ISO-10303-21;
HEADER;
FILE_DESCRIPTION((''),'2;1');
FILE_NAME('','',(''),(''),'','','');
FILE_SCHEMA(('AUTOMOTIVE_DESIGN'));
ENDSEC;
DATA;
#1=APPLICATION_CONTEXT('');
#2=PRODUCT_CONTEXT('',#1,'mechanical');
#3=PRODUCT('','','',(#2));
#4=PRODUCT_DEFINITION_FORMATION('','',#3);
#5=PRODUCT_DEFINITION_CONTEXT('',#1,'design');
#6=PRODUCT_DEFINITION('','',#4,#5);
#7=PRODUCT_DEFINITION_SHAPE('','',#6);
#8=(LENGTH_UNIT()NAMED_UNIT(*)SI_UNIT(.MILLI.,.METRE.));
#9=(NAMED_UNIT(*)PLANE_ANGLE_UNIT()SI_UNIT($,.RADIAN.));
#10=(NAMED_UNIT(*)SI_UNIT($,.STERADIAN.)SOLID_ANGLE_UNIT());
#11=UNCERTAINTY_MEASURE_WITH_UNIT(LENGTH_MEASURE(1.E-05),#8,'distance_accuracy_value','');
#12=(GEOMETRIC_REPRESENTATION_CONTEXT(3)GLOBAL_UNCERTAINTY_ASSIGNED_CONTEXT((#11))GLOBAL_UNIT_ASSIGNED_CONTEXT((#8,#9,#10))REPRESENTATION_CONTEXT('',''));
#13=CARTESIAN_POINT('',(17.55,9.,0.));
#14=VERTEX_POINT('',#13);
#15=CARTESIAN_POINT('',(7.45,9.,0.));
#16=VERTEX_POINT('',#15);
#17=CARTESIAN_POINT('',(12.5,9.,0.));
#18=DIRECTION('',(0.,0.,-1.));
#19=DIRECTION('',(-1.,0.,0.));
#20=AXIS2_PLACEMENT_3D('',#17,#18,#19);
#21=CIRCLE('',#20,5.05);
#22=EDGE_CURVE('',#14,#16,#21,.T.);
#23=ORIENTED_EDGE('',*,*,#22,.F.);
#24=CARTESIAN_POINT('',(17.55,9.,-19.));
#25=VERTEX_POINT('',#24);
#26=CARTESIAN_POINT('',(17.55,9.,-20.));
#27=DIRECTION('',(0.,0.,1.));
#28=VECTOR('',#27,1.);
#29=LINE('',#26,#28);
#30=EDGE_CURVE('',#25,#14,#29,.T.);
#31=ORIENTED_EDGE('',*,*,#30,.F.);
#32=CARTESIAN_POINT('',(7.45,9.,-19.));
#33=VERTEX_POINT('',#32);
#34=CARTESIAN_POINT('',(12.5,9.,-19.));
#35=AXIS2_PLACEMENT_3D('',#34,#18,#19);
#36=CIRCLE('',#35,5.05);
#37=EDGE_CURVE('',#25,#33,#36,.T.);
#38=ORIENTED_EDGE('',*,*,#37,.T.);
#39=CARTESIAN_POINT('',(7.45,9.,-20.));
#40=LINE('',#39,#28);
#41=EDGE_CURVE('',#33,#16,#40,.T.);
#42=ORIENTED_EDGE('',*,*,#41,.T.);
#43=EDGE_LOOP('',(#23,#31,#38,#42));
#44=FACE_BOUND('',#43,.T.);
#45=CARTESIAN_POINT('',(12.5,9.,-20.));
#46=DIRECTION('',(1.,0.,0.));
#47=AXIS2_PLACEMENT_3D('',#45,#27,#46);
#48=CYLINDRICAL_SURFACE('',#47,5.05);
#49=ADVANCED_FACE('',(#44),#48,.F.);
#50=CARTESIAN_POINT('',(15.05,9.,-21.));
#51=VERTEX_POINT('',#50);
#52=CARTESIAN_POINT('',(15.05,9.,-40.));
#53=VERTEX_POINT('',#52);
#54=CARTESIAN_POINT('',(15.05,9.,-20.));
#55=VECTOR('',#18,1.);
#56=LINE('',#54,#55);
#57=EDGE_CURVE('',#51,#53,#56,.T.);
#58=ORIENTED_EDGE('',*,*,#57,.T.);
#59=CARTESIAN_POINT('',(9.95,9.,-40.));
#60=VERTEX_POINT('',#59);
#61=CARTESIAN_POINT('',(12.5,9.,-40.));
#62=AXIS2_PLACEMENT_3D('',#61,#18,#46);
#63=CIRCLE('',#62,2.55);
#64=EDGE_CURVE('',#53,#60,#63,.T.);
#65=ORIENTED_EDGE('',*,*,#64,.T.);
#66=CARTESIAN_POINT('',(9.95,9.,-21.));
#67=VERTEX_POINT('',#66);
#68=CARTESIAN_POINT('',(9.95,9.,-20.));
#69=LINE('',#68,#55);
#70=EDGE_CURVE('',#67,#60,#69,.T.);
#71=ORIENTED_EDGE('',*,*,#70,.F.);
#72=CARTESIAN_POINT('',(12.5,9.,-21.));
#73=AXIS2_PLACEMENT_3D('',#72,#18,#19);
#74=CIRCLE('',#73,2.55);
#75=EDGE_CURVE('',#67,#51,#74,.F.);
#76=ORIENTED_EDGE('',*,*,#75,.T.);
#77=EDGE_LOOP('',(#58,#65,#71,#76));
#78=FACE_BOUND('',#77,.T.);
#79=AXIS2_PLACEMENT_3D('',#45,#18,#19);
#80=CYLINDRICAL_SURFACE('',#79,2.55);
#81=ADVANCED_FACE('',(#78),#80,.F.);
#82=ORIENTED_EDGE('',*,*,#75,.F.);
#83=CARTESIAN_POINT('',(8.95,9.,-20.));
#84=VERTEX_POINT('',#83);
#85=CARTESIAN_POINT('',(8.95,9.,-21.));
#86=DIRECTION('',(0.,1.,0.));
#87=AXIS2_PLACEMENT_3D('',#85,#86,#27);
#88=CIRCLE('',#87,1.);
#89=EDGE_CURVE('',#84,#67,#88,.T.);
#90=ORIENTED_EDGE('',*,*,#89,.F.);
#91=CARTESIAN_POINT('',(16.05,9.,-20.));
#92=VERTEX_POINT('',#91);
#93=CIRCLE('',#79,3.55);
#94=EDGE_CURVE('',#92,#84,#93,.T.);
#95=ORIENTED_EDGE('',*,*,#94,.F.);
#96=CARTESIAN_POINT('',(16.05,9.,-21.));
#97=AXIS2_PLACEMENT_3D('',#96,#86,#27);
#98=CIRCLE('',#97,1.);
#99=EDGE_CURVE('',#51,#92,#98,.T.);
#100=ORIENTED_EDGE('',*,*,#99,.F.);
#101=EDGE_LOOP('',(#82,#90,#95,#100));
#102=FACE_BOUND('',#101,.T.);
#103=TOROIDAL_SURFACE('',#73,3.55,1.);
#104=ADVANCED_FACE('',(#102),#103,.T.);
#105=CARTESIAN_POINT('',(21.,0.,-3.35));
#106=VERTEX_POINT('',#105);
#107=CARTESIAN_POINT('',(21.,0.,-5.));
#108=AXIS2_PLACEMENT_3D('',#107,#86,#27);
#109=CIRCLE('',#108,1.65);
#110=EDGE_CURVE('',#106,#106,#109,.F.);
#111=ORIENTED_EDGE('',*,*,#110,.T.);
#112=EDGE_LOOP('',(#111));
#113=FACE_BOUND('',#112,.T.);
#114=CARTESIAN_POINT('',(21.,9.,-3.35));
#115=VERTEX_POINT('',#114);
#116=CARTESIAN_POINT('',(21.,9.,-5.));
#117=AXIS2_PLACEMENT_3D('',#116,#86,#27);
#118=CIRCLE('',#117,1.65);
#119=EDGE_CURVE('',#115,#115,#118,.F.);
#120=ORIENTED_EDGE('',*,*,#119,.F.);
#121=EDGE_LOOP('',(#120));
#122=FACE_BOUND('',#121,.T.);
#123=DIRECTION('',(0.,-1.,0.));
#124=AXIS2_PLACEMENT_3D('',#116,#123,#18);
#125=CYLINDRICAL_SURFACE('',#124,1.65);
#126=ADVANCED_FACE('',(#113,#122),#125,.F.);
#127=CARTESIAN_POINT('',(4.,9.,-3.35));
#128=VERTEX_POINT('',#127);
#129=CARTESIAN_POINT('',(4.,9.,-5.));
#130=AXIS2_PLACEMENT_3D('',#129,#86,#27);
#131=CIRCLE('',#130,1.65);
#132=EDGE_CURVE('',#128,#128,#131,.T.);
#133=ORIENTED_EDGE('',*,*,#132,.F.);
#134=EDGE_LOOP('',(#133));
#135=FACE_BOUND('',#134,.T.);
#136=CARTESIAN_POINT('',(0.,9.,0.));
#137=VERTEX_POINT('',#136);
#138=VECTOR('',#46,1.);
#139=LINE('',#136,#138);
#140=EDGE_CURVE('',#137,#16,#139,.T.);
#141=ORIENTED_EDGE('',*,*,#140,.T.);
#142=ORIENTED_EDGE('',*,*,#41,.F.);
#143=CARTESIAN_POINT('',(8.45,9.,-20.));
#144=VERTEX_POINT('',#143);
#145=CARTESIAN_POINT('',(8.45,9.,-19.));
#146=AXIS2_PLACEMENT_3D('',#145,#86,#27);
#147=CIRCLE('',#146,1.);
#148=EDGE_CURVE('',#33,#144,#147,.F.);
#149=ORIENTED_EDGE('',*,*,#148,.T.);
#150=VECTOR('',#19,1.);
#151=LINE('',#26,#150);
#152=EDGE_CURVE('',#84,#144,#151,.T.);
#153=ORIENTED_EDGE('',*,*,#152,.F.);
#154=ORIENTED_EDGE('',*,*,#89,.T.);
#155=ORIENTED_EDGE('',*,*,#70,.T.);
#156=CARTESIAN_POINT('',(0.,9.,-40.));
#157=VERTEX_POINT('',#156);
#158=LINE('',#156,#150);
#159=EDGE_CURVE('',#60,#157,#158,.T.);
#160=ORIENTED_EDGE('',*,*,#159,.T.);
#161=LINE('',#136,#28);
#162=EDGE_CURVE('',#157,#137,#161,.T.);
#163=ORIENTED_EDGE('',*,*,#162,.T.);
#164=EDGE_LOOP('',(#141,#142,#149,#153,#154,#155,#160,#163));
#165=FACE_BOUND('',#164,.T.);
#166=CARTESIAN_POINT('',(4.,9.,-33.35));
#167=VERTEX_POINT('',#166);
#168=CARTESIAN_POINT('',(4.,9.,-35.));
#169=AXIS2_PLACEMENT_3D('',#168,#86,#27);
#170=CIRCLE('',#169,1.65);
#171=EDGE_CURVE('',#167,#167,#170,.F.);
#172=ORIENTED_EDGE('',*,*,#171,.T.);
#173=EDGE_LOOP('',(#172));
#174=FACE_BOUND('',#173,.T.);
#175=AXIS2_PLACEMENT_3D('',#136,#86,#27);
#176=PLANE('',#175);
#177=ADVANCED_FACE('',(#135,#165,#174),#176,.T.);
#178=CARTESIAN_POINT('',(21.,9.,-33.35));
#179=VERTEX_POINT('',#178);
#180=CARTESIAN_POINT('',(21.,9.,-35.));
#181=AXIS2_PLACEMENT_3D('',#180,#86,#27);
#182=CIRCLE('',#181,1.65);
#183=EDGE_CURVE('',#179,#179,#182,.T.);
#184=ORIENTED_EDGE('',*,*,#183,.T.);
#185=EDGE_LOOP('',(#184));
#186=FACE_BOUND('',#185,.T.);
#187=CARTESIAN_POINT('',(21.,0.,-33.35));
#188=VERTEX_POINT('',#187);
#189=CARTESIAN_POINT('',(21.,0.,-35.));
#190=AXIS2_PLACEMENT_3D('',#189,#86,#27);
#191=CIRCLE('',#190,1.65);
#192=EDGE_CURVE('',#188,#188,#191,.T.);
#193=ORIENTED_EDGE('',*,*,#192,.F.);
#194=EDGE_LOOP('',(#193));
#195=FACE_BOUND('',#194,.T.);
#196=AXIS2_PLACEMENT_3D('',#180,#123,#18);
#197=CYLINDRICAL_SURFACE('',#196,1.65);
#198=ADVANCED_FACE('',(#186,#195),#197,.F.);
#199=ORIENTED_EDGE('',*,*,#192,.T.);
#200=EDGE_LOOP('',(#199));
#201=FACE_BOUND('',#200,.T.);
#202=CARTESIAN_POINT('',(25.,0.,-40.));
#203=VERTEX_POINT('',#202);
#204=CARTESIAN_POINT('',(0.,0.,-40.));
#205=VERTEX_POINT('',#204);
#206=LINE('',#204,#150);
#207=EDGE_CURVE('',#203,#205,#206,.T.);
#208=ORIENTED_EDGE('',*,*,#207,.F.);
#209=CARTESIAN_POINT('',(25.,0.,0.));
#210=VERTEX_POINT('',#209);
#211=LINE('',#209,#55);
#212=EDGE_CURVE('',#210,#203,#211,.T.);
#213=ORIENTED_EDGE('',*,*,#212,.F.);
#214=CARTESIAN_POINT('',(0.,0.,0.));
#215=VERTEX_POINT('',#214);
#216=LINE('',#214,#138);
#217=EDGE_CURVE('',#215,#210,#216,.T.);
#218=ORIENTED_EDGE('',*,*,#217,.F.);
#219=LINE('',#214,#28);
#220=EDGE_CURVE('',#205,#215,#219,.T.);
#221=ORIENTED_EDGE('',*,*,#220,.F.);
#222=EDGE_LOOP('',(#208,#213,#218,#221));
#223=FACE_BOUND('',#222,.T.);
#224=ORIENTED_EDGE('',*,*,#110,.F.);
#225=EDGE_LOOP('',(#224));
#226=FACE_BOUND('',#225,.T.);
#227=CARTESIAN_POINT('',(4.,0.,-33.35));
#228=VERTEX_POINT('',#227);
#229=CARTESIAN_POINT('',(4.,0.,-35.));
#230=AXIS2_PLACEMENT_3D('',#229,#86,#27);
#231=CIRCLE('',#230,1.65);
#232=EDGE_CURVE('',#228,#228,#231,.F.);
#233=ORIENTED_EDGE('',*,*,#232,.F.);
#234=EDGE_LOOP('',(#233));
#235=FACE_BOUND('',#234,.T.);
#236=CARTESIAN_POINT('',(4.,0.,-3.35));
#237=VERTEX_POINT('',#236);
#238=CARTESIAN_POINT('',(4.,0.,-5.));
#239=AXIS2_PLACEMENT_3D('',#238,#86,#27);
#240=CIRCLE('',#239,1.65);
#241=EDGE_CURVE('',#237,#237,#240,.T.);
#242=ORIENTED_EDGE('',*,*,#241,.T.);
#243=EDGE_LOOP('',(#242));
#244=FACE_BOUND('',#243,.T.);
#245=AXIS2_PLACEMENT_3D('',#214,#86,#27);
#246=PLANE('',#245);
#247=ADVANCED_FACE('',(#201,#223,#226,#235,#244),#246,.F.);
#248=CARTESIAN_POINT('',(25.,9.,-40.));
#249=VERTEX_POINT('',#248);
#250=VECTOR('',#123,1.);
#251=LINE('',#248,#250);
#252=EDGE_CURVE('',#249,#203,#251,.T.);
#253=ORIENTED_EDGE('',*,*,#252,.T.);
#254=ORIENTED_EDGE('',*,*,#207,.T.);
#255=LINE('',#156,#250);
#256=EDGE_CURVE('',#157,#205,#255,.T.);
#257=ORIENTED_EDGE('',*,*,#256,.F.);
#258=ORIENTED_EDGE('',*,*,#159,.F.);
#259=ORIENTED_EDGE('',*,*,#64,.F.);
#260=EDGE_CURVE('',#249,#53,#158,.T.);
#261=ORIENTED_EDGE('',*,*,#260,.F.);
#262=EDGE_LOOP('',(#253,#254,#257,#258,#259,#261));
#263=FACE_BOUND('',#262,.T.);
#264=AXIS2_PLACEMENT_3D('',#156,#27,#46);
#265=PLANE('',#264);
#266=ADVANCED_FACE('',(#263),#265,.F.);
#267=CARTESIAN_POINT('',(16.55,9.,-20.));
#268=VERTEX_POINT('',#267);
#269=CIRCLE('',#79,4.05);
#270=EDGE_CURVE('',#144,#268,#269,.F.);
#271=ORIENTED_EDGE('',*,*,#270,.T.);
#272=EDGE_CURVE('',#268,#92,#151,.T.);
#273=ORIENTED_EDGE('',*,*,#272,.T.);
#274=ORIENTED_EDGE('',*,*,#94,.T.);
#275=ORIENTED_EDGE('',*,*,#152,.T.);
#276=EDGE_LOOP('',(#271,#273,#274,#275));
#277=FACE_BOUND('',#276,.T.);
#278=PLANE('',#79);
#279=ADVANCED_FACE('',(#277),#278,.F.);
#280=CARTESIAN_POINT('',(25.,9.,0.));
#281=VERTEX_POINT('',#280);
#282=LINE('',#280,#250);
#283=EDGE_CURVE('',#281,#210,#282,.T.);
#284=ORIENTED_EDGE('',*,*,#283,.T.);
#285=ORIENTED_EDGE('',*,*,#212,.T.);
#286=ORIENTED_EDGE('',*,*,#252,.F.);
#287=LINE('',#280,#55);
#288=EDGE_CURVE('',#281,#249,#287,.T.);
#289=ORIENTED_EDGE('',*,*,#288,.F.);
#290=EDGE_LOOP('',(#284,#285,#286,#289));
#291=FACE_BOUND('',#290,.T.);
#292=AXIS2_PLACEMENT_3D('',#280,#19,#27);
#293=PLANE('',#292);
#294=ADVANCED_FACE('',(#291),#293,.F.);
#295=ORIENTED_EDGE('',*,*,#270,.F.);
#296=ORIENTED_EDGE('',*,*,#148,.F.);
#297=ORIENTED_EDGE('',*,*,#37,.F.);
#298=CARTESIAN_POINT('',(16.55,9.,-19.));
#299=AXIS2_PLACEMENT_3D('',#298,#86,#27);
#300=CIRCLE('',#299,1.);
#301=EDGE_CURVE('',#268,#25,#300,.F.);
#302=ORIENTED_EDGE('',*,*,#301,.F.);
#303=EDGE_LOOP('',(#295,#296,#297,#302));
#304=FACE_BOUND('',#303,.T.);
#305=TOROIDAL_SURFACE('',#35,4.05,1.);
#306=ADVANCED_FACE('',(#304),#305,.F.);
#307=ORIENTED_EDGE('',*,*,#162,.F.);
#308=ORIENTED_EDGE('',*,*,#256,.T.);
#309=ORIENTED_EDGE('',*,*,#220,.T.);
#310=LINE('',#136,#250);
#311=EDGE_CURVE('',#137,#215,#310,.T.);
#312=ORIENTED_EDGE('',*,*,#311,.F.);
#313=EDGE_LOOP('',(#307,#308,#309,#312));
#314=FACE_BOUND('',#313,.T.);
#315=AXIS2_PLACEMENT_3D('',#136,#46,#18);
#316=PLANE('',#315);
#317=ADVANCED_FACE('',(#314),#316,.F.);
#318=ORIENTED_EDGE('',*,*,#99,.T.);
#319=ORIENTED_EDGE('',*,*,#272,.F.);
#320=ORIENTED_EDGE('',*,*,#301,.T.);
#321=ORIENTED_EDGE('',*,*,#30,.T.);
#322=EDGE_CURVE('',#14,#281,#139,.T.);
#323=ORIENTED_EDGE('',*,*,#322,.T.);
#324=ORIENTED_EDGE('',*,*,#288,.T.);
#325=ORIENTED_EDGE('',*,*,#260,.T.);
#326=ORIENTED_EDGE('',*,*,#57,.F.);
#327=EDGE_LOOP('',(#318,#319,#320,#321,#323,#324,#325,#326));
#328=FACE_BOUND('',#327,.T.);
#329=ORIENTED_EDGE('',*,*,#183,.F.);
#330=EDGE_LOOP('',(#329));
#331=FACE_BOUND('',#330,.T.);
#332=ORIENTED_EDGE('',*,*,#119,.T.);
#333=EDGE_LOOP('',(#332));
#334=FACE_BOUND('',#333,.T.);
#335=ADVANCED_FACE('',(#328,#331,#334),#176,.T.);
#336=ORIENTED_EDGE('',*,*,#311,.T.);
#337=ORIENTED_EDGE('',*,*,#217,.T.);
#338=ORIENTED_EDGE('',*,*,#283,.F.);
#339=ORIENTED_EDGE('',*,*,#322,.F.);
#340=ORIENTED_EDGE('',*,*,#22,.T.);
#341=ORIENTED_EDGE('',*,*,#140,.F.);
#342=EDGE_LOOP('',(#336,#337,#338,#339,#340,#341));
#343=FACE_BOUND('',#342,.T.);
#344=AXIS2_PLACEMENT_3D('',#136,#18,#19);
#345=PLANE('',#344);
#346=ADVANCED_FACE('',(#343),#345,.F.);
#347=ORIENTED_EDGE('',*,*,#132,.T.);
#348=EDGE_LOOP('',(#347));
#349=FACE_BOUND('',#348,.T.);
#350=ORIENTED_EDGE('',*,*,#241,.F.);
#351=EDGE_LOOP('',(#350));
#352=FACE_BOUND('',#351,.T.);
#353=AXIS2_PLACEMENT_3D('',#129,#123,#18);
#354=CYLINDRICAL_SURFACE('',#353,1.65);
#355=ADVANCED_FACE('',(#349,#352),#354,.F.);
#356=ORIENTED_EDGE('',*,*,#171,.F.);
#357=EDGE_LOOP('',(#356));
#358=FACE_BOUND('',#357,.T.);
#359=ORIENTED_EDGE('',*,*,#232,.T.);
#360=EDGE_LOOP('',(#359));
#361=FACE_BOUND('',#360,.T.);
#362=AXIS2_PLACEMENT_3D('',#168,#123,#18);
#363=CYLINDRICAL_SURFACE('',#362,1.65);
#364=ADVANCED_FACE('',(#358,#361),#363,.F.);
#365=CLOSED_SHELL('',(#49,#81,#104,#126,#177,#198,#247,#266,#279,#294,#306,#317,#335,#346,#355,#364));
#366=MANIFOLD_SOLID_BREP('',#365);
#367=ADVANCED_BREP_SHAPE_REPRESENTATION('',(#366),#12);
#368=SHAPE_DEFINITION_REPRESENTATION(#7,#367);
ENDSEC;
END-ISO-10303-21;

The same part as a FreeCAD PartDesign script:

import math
import FreeCAD as App
import Part
import Sketcher
from FreeCAD import Vector


def edges_at(feature, points):
    """Names of the edges that pass closest to the given points."""
    edges = feature.Shape.Edges
    near = lambda p: min(range(len(edges)), key=lambda i: edges[i].distToShape(Part.Vertex(*p))[0])
    return sorted({f"Edge{near(p) + 1}" for p in points})

doc = App.newDocument("Part")
body = doc.addObject("PartDesign::Body", "Body")

sketch1 = body.newObject("Sketcher::SketchObject", "Sketch")
sketch1.AttachmentSupport = (doc.getObject("XZ_Plane"), [""])
sketch1.MapMode = "FlatFace"
sketch1.addGeometry([
    Part.LineSegment(Vector(0, -40, 0), Vector(0, 0, 0)),
    Part.LineSegment(Vector(0, 0, 0), Vector(25, 0, 0)),
    Part.LineSegment(Vector(25, 0, 0), Vector(25, -40, 0)),
    Part.LineSegment(Vector(25, -40, 0), Vector(0, -40, 0)),
    Part.Circle(Vector(4, -5, 0), Vector(0, 0, 1), 1.6),
    Part.Circle(Vector(21, -5, 0), Vector(0, 0, 1), 1.6),
    Part.Circle(Vector(4, -35, 0), Vector(0, 0, 1), 1.6),
    Part.Circle(Vector(21, -35, 0), Vector(0, 0, 1), 1.6),
], False)
sketch1.addConstraint([
    Sketcher.Constraint("Coincident", 0, 2, 1, 1),
    Sketcher.Constraint("Coincident", 1, 2, 2, 1),
    Sketcher.Constraint("Coincident", 2, 2, 3, 1),
    Sketcher.Constraint("Coincident", 3, 2, 0, 1),
    Sketcher.Constraint("Vertical", 0),
    Sketcher.Constraint("Horizontal", 1),
    Sketcher.Constraint("Vertical", 2),
    Sketcher.Constraint("Horizontal", 3),
    Sketcher.Constraint("Coincident", 0, 2, -1, 1),
    Sketcher.Constraint("Equal", 4, 5),
    Sketcher.Constraint("Equal", 5, 6),
    Sketcher.Constraint("Equal", 6, 7),
    Sketcher.Constraint("Horizontal", 4, 3, 5, 3),
    Sketcher.Constraint("Horizontal", 6, 3, 7, 3),
    Sketcher.Constraint("Vertical", 4, 3, 6, 3),
    Sketcher.Constraint("Vertical", 5, 3, 7, 3),
    Sketcher.Constraint("Diameter", 4, 3.3),
    Sketcher.Constraint("DistanceX", 1, 1, 1, 2, 25.0),
    Sketcher.Constraint("DistanceY", 0, 1, 0, 2, 40.0),
    Sketcher.Constraint("DistanceX", -1, 1, 4, 3, 4.0),
    Sketcher.Constraint("DistanceY", 4, 3, -1, 1, 5.0),
    Sketcher.Constraint("DistanceX", -1, 1, 5, 3, 21.0),
    Sketcher.Constraint("DistanceY", 6, 3, -1, 1, 35.0),
])
pad1 = body.newObject("PartDesign::Pad", "Pad")
pad1.Profile = sketch1
pad1.Length = 9
pad1.Reversed = True

sketch2 = body.newObject("Sketcher::SketchObject", "Sketch001")
sketch2.AttachmentSupport = (doc.getObject("XY_Plane"), [""])
sketch2.MapMode = "FlatFace"
sketch2.AttachmentOffset = App.Placement(Vector(0, 0, -40), App.Rotation())
sketch2.addGeometry([
    Part.LineSegment(Vector(9.9, 9, 0), Vector(15.1, 9, 0)),
    Part.ArcOfCircle(Part.Circle(Vector(12.5, 9, 0), Vector(0, 0, 1), 2.5), math.radians(180), math.radians(360)),
], False)
sketch2.addConstraint([
    Sketcher.Constraint("Coincident", 0, 1, 1, 1),
    Sketcher.Constraint("Coincident", 1, 2, 0, 2),
    Sketcher.Constraint("Horizontal", 0),
    Sketcher.Constraint("Horizontal", 1, 3, 0, 1),
    Sketcher.Constraint("Radius", 1, 2.55),
    Sketcher.Constraint("DistanceY", -1, 1, 1, 3, 9.0),
    Sketcher.Constraint("DistanceX", -1, 1, 1, 3, 12.5),
])
pocket1 = body.newObject("PartDesign::Pocket", "Pocket")
pocket1.Profile = sketch2
pocket1.Length = 20
pocket1.Reversed = True

sketch3 = body.newObject("Sketcher::SketchObject", "Sketch002")
sketch3.AttachmentSupport = (doc.getObject("XY_Plane"), [""])
sketch3.MapMode = "FlatFace"
sketch3.addGeometry([
    Part.LineSegment(Vector(18, 9, 0), Vector(7, 9, 0)),
    Part.ArcOfCircle(Part.Circle(Vector(12, 9, 0), Vector(0, 0, 1), 5), math.radians(180), math.radians(360)),
], False)
sketch3.addConstraint([
    Sketcher.Constraint("Coincident", 0, 1, 1, 2),
    Sketcher.Constraint("Coincident", 1, 1, 0, 2),
    Sketcher.Constraint("Horizontal", 0),
    Sketcher.Constraint("Horizontal", 1, 3, 0, 1),
    Sketcher.Constraint("Radius", 1, 5.05),
    Sketcher.Constraint("DistanceY", -1, 1, 1, 3, 9.0),
    Sketcher.Constraint("DistanceX", -1, 1, 1, 3, 12.5),
])
pocket2 = body.newObject("PartDesign::Pocket", "Pocket001")
pocket2.Profile = sketch3
pocket2.Length = 20
doc.recompute()

fillet = body.newObject("PartDesign::Fillet", "Fillet")
fillet.Base = (pocket2, edges_at(pocket2, [(12.5, 6.45, -20), (12.5, 3.95, -20)]))
fillet.Radius = 1

doc.recompute()
